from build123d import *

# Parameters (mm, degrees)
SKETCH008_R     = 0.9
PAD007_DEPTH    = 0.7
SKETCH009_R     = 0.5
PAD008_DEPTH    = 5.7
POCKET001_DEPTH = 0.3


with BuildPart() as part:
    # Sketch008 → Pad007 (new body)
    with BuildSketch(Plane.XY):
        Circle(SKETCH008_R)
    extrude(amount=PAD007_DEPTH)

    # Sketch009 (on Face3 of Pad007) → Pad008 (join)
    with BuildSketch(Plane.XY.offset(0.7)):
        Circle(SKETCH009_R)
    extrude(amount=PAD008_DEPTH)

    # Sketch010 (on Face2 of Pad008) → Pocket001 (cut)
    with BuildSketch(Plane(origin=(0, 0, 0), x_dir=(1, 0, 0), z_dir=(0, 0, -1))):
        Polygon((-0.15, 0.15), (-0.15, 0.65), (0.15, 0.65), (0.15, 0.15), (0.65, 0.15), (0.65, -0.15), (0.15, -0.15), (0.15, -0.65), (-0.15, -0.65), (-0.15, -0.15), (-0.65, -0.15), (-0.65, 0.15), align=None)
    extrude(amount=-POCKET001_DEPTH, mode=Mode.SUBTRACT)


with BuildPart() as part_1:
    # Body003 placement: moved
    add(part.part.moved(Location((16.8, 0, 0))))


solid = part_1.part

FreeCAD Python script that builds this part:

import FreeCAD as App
import Part
import Sketcher
from FreeCAD import Vector

doc = App.newDocument("Part")
body = doc.addObject("PartDesign::Body", "Body")

sketch1 = body.newObject("Sketcher::SketchObject", "Sketch")
sketch1.AttachmentSupport = (doc.getObject("XY_Plane"), [""])
sketch1.MapMode = "FlatFace"
sketch1.addGeometry(Part.Circle(Vector(0, 0, 0), Vector(0, 0, 1), 0.9), False)
sketch1.addConstraint([
    Sketcher.Constraint("Coincident", 0, 3, -1, 1),
    Sketcher.Constraint("Diameter", 0, 1.8),
])
pad1 = body.newObject("PartDesign::Pad", "Pad")
pad1.Profile = sketch1
pad1.Length = 0.7

sketch2 = body.newObject("Sketcher::SketchObject", "Sketch001")
sketch2.AttachmentSupport = (doc.getObject("XY_Plane"), [""])
sketch2.MapMode = "FlatFace"
sketch2.AttachmentOffset = App.Placement(Vector(0, 0, 0.7), App.Rotation())
sketch2.addGeometry(Part.Circle(Vector(0, 0, 0), Vector(0, 0, 1), 0.5), False)
sketch2.addConstraint([
    Sketcher.Constraint("Coincident", 0, 3, -1, 1),
    Sketcher.Constraint("Diameter", 0, 1.0),
])
pad2 = body.newObject("PartDesign::Pad", "Pad001")
pad2.Profile = sketch2
pad2.Length = 5.7

sketch3 = body.newObject("Sketcher::SketchObject", "Sketch002")
sketch3.AttachmentSupport = (doc.getObject("XY_Plane"), [""])
sketch3.MapMode = "FlatFace"
sketch3.addGeometry([
    Part.LineSegment(Vector(-0.15, -0.65, 0), Vector(-0.15, -0.15, 0)),
    Part.LineSegment(Vector(-0.15, -0.15, 0), Vector(-0.65, -0.15, 0)),
    Part.LineSegment(Vector(-0.65, -0.15, 0), Vector(-0.65, 0.15, 0)),
    Part.LineSegment(Vector(-0.65, 0.15, 0), Vector(-0.15, 0.15, 0)),
    Part.LineSegment(Vector(-0.15, 0.15, 0), Vector(-0.15, 0.65, 0)),
    Part.LineSegment(Vector(-0.15, 0.65, 0), Vector(0.15, 0.65, 0)),
    Part.LineSegment(Vector(0.15, 0.65, 0), Vector(0.15, 0.15, 0)),
    Part.LineSegment(Vector(0.15, 0.15, 0), Vector(0.65, 0.15, 0)),
    Part.LineSegment(Vector(0.65, 0.15, 0), Vector(0.65, -0.15, 0)),
    Part.LineSegment(Vector(0.65, -0.15, 0), Vector(0.15, -0.15, 0)),
    Part.LineSegment(Vector(0.15, -0.15, 0), Vector(0.15, -0.65, 0)),
    Part.LineSegment(Vector(0.15, -0.65, 0), Vector(-0.15, -0.65, 0)),
], False)
sketch3.addConstraint([
    Sketcher.Constraint("Coincident", 0, 2, 1, 1),
    Sketcher.Constraint("Coincident", 1, 2, 2, 1),
    Sketcher.Constraint("Coincident", 2, 2, 3, 1),
    Sketcher.Constraint("Coincident", 3, 2, 4, 1),
    Sketcher.Constraint("Coincident", 4, 2, 5, 1),
    Sketcher.Constraint("Coincident", 5, 2, 6, 1),
    Sketcher.Constraint("Coincident", 6, 2, 7, 1),
    Sketcher.Constraint("Coincident", 7, 2, 8, 1),
    Sketcher.Constraint("Coincident", 8, 2, 9, 1),
    Sketcher.Constraint("Coincident", 9, 2, 10, 1),
    Sketcher.Constraint("Coincident", 10, 2, 11, 1),
    Sketcher.Constraint("Coincident", 11, 2, 0, 1),
    Sketcher.Constraint("Vertical", 0),
    Sketcher.Constraint("Horizontal", 1),
    Sketcher.Constraint("Vertical", 2),
    Sketcher.Constraint("Horizontal", 3),
    Sketcher.Constraint("Vertical", 4),
    Sketcher.Constraint("Horizontal", 5),
    Sketcher.Constraint("Vertical", 6),
    Sketcher.Constraint("Horizontal", 7),
    Sketcher.Constraint("Vertical", 8),
    Sketcher.Constraint("Horizontal", 9),
    Sketcher.Constraint("Vertical", 10),
    Sketcher.Constraint("Horizontal", 11),
    Sketcher.Constraint("Symmetric", 0, 2, 6, 2, -1, 1),
    Sketcher.Constraint("Symmetric", 2, 2, 8, 2, -1, 1),
    Sketcher.Constraint("Symmetric", 4, 2, 10, 2, -1, 1),
    Sketcher.Constraint("Symmetric", 3, 2, 6, 2, -2),
    Sketcher.Constraint("Equal", 9, 0),
    Sketcher.Constraint("Equal", 11, 2),
    Sketcher.Constraint("DistanceX", 1, 2, 1, 1, 0.5),
    Sketcher.Constraint("DistanceX", 5, 1, 5, 2, 0.3),
])
pocket1 = body.newObject("PartDesign::Pocket", "Pocket")
pocket1.Profile = sketch3
pocket1.Length = 0.3
pocket1.Reversed = True
body2 = doc.addObject("PartDesign::Body", "Body001")
doc.recompute()

body.Placement = App.Placement(Vector(16.8, 0, 0), App.Rotation(Vector(0, 0, 1), 0))
boolean = body2.newObject("PartDesign::Boolean", "Boolean")
boolean.Type = "Fuse"
boolean.addObjects([body])

doc.recompute()
